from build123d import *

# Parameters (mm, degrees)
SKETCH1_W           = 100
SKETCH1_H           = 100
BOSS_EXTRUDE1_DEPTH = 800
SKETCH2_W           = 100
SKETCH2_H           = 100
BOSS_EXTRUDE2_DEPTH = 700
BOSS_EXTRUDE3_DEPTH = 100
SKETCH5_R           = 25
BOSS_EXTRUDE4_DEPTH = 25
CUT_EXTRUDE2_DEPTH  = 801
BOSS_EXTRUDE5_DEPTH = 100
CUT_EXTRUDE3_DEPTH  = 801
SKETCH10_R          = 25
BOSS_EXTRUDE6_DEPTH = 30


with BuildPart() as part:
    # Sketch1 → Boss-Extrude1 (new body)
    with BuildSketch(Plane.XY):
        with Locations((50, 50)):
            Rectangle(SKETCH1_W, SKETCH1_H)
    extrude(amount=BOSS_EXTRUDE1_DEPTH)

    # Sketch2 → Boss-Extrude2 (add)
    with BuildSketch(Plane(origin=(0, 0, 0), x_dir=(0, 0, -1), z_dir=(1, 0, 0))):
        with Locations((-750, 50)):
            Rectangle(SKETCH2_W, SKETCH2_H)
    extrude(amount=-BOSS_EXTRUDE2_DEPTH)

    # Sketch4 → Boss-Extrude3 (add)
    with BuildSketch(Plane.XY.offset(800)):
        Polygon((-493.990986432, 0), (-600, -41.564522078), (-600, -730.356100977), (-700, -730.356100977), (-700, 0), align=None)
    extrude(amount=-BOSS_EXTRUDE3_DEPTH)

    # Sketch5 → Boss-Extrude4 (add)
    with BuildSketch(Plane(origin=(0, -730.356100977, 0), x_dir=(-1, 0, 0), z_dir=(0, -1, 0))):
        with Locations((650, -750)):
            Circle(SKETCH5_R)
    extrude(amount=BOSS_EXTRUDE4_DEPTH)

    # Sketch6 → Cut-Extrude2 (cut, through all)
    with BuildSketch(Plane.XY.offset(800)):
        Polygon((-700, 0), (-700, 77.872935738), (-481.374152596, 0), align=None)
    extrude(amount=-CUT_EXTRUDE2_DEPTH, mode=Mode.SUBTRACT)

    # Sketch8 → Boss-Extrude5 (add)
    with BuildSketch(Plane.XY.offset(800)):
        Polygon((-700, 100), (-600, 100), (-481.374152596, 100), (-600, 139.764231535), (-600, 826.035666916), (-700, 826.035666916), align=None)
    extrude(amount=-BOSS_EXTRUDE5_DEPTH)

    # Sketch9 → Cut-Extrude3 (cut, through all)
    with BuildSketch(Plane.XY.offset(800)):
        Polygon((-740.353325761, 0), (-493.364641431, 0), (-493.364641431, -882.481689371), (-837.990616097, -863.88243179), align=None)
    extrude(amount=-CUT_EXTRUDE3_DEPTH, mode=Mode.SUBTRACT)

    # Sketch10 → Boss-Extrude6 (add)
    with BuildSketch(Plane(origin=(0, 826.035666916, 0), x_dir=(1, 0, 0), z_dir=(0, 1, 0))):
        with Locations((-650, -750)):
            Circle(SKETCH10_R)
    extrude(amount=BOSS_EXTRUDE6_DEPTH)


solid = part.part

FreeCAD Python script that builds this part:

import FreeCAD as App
import Part
import Sketcher

V = App.Vector


def add_polygon(sketch, points):
    """Adds a closed chain of lines whose ends are joined by coincident constraints."""
    first, n = sketch.GeometryCount, len(points)
    for a, b in zip(points, points[1:] + points[:1]):
        sketch.addGeometry(Part.LineSegment(App.Vector(*a, 0), App.Vector(*b, 0)), False)
    for i in range(n):
        sketch.addConstraint(Sketcher.Constraint("Coincident", first + i, 2, first + (i + 1) % n, 1))

doc = App.newDocument("Part")
params = doc.addObject("Spreadsheet::Sheet", "Params")
for row, (alias, value) in enumerate([
    ("sketch1_width", "100 mm"),
    ("pad1_length", "800 mm"),
    ("sketch2_width", "100 mm"),
    ("pad2_length", "700 mm"),
    ("sketch3_width", "100 mm"),
    ("pad3_length", "100 mm"),
    ("sketch4_diameter", "50 mm"),
    ("pad4_length", "25 mm"),
    ("sketch6_width", "100 mm"),
    ("pad5_length", "100 mm"),
    ("sketch8_diameter", "50 mm"),
    ("pad6_length", "30 mm"),
], start=1):
    params.set(f"A{row}", alias)
    params.set(f"B{row}", "=" + value)
    params.setAlias(f"B{row}", alias)

body = doc.addObject("PartDesign::Body", "Body")
body.AllowCompound = True

# Sketch on XY plane
sketch1 = body.newObject("Sketcher::SketchObject", "Sketch")
sketch1.AttachmentSupport = (doc.getObject("XY_Plane"), [""])
sketch1.MapMode = "FlatFace"
add_polygon(sketch1, [(0, 100), (0, 0), (100, 0), (100, 100)])  # lines 0-3
sketch1.addConstraint(Sketcher.Constraint("Vertical", 0))
sketch1.addConstraint(Sketcher.Constraint("Horizontal", 1))
sketch1.addConstraint(Sketcher.Constraint("Vertical", 2))
sketch1.addConstraint(Sketcher.Constraint("Horizontal", 3))
sketch1.addConstraint(Sketcher.Constraint("Coincident", 0, 2, -1, 1))
sketch1.addConstraint(Sketcher.Constraint("Equal", 3, 0))
sketch1.addConstraint(Sketcher.Constraint("DistanceX", 1, 1, 1, 2, 100.0))
sketch1.setExpression("Constraints[10]", "Params.sketch1_width")
pad1 = body.newObject("PartDesign::Pad", "Pad")
pad1.Profile = sketch1
pad1.setExpression("Length", "Params.pad1_length")

# Sketch on YZ plane
sketch2 = body.newObject("Sketcher::SketchObject", "Sketch001")
sketch2.AttachmentSupport = (doc.getObject("YZ_Plane"), [""])
sketch2.MapMode = "FlatFace"
add_polygon(sketch2, [(100, 800), (0, 800), (0, 700), (100, 700)])  # lines 0-3
sketch2.addConstraint(Sketcher.Constraint("Horizontal", 0))
sketch2.addConstraint(Sketcher.Constraint("Vertical", 1))
sketch2.addConstraint(Sketcher.Constraint("Horizontal", 2))
sketch2.addConstraint(Sketcher.Constraint("Vertical", 3))
sketch2.addConstraint(Sketcher.Constraint("PointOnObject", 0, 2, -2))
sketch2.addConstraint(Sketcher.Constraint("Equal", 2, 1))
sketch2.addConstraint(Sketcher.Constraint("DistanceX", 0, 2, 0, 1, 100.0))
sketch2.addConstraint(Sketcher.Constraint("DistanceY", -1, 1, 0, 2, 800.0))
sketch2.setExpression("Constraints[10]", "Params.sketch2_width")
pad2 = body.newObject("PartDesign::Pad", "Pad001")
pad2.Profile = sketch2
pad2.setExpression("Length", "Params.pad2_length")
pad2.Reversed = True

# Sketch on XY plane
sketch3 = body.newObject("Sketcher::SketchObject", "Sketch002")
sketch3.AttachmentSupport = (doc.getObject("XY_Plane"), [""])
sketch3.MapMode = "FlatFace"
sketch3.AttachmentOffset = App.Placement(V(0, 0, 800), App.Rotation())
add_polygon(sketch3, [(-600, -42), (-494, 0), (-700, 0), (-700, -730), (-600, -730)])  # lines 0-4
sketch3.addConstraint(Sketcher.Constraint("Horizontal", 1))
sketch3.addConstraint(Sketcher.Constraint("Vertical", 2))
sketch3.addConstraint(Sketcher.Constraint("Horizontal", 3))
sketch3.addConstraint(Sketcher.Constraint("Vertical", 4))
sketch3.addConstraint(Sketcher.Constraint("PointOnObject", 0, 2, -1))
sketch3.addConstraint(Sketcher.Constraint("DistanceX", 3, 1, 3, 2, 100.0))
sketch3.addConstraint(Sketcher.Constraint("DistanceX", 1, 2, -1, 1, 700.0))
sketch3.addConstraint(Sketcher.Constraint("DistanceY", 2, 2, 2, 1, 730.356101))
sketch3.addConstraint(Sketcher.Constraint("DistanceY", 4, 1, 4, 2, 688.791579))
sketch3.addConstraint(Sketcher.Constraint("Distance", 0, 113.866239))
sketch3.setExpression("Constraints[10]", "Params.sketch3_width")
pad3 = body.newObject("PartDesign::Pad", "Pad002")
pad3.Profile = sketch3
pad3.setExpression("Length", "Params.pad3_length")
pad3.Reversed = True

# Sketch on XZ plane
sketch4 = body.newObject("Sketcher::SketchObject", "Sketch003")
sketch4.AttachmentSupport = (doc.getObject("XZ_Plane"), [""])
sketch4.MapMode = "FlatFace"
sketch4.AttachmentOffset = App.Placement(V(0, 0, 730.356101), App.Rotation())
sketch4.addGeometry(Part.Circle(V(-650, 750, 0), V(0, 0, 1), 25), False)
sketch4.addConstraint(Sketcher.Constraint("Diameter", 0, 50.0))
sketch4.addConstraint(Sketcher.Constraint("DistanceX", 0, 3, -1, 1, 650.0))
sketch4.addConstraint(Sketcher.Constraint("DistanceY", -1, 1, 0, 3, 750.0))
sketch4.setExpression("Constraints[0]", "Params.sketch4_diameter")
pad4 = body.newObject("PartDesign::Pad", "Pad003")
pad4.Profile = sketch4
pad4.setExpression("Length", "Params.pad4_length")

# Sketch on XY plane
sketch5 = body.newObject("Sketcher::SketchObject", "Sketch004")
sketch5.AttachmentSupport = (doc.getObject("XY_Plane"), [""])
sketch5.MapMode = "FlatFace"
sketch5.AttachmentOffset = App.Placement(V(0, 0, 800), App.Rotation())
add_polygon(sketch5, [(-700, 78), (-700, 0), (-481, 0)])  # lines 0-2
sketch5.addConstraint(Sketcher.Constraint("Vertical", 0))
sketch5.addConstraint(Sketcher.Constraint("Horizontal", 1))
sketch5.addConstraint(Sketcher.Constraint("PointOnObject", 0, 2, -1))
sketch5.addConstraint(Sketcher.Constraint("DistanceX", 0, 2, -1, 1, 700.0))
sketch5.addConstraint(Sketcher.Constraint("Distance", 2, 232.080709))
sketch5.addConstraint(Sketcher.Constraint("DistanceX", 1, 1, 1, 2, 218.625847))
pocket1 = body.newObject("PartDesign::Pocket", "Pocket")
pocket1.Profile = sketch5
pocket1.Type = "ThroughAll"

# Sketch on XY plane
sketch6 = body.newObject("Sketcher::SketchObject", "Sketch005")
sketch6.AttachmentSupport = (doc.getObject("XY_Plane"), [""])
sketch6.MapMode = "FlatFace"
sketch6.AttachmentOffset = App.Placement(V(0, 0, 800), App.Rotation())
add_polygon(sketch6, [(-700, 100), (-481, 100), (-600, 140), (-600, 826), (-700, 826)])  # lines 0-4
sketch6.addConstraint(Sketcher.Constraint("Horizontal", 0))
sketch6.addConstraint(Sketcher.Constraint("Vertical", 2))
sketch6.addConstraint(Sketcher.Constraint("Horizontal", 3))
sketch6.addConstraint(Sketcher.Constraint("Vertical", 4))
sketch6.addConstraint(Sketcher.Constraint("DistanceX", 3, 2, 3, 1, 100.0))
sketch6.addConstraint(Sketcher.Constraint("DistanceY", -1, 1, 0, 2, 100.0))
sketch6.addConstraint(Sketcher.Constraint("DistanceX", 1, 2, -1, 1, 600.0))
sketch6.addConstraint(Sketcher.Constraint("Distance", 1, 125.113092))
sketch6.addConstraint(Sketcher.Constraint("DistanceX", 0, 1, 0, 2, 218.625847))
sketch6.addConstraint(Sketcher.Constraint("DistanceY", 2, 1, 2, 2, 686.271435))
sketch6.setExpression("Constraints[9]", "Params.sketch6_width")
pad5 = body.newObject("PartDesign::Pad", "Pad004")
pad5.Profile = sketch6
pad5.setExpression("Length", "Params.pad5_length")
pad5.Reversed = True

# Sketch on XY plane
sketch7 = body.newObject("Sketcher::SketchObject", "Sketch006")
sketch7.AttachmentSupport = (doc.getObject("XY_Plane"), [""])
sketch7.MapMode = "FlatFace"
sketch7.AttachmentOffset = App.Placement(V(0, 0, 800), App.Rotation())
add_polygon(sketch7, [(-493, 0), (-740, 0), (-838, -864), (-493, -882)])  # lines 0-3
sketch7.addConstraint(Sketcher.Constraint("Horizontal", 0))
sketch7.addConstraint(Sketcher.Constraint("Vertical", 3))
sketch7.addConstraint(Sketcher.Constraint("PointOnObject", 0, 2, -1))
sketch7.addConstraint(Sketcher.Constraint("DistanceY", 3, 1, 3, 2, 882.481689))
sketch7.addConstraint(Sketcher.Constraint("Distance", 1, 869.38248))
sketch7.addConstraint(Sketcher.Constraint("DistanceX", 0, 2, 0, 1, 246.988684))
sketch7.addConstraint(Sketcher.Constraint("DistanceY", 1, 2, -1, 1, 863.882432))
sketch7.addConstraint(Sketcher.Constraint("DistanceX", 2, 2, -1, 1, 493.364641))
pocket2 = body.newObject("PartDesign::Pocket", "Pocket001")
pocket2.Profile = sketch7
pocket2.Type = "ThroughAll"

# Sketch on XZ plane
sketch8 = body.newObject("Sketcher::SketchObject", "Sketch007")
sketch8.AttachmentSupport = (doc.getObject("XZ_Plane"), [""])
sketch8.MapMode = "FlatFace"
sketch8.AttachmentOffset = App.Placement(V(0, 0, -826.035667), App.Rotation())
sketch8.addGeometry(Part.Circle(V(-650, 750, 0), V(0, 0, 1), 25), False)
sketch8.addConstraint(Sketcher.Constraint("Diameter", 0, 50.0))
sketch8.addConstraint(Sketcher.Constraint("DistanceX", 0, 3, -1, 1, 650.0))
sketch8.addConstraint(Sketcher.Constraint("DistanceY", -1, 1, 0, 3, 750.0))
sketch8.setExpression("Constraints[0]", "Params.sketch8_diameter")
pad6 = body.newObject("PartDesign::Pad", "Pad005")
pad6.Profile = sketch8
pad6.setExpression("Length", "Params.pad6_length")
pad6.Reversed = True

doc.recompute()
